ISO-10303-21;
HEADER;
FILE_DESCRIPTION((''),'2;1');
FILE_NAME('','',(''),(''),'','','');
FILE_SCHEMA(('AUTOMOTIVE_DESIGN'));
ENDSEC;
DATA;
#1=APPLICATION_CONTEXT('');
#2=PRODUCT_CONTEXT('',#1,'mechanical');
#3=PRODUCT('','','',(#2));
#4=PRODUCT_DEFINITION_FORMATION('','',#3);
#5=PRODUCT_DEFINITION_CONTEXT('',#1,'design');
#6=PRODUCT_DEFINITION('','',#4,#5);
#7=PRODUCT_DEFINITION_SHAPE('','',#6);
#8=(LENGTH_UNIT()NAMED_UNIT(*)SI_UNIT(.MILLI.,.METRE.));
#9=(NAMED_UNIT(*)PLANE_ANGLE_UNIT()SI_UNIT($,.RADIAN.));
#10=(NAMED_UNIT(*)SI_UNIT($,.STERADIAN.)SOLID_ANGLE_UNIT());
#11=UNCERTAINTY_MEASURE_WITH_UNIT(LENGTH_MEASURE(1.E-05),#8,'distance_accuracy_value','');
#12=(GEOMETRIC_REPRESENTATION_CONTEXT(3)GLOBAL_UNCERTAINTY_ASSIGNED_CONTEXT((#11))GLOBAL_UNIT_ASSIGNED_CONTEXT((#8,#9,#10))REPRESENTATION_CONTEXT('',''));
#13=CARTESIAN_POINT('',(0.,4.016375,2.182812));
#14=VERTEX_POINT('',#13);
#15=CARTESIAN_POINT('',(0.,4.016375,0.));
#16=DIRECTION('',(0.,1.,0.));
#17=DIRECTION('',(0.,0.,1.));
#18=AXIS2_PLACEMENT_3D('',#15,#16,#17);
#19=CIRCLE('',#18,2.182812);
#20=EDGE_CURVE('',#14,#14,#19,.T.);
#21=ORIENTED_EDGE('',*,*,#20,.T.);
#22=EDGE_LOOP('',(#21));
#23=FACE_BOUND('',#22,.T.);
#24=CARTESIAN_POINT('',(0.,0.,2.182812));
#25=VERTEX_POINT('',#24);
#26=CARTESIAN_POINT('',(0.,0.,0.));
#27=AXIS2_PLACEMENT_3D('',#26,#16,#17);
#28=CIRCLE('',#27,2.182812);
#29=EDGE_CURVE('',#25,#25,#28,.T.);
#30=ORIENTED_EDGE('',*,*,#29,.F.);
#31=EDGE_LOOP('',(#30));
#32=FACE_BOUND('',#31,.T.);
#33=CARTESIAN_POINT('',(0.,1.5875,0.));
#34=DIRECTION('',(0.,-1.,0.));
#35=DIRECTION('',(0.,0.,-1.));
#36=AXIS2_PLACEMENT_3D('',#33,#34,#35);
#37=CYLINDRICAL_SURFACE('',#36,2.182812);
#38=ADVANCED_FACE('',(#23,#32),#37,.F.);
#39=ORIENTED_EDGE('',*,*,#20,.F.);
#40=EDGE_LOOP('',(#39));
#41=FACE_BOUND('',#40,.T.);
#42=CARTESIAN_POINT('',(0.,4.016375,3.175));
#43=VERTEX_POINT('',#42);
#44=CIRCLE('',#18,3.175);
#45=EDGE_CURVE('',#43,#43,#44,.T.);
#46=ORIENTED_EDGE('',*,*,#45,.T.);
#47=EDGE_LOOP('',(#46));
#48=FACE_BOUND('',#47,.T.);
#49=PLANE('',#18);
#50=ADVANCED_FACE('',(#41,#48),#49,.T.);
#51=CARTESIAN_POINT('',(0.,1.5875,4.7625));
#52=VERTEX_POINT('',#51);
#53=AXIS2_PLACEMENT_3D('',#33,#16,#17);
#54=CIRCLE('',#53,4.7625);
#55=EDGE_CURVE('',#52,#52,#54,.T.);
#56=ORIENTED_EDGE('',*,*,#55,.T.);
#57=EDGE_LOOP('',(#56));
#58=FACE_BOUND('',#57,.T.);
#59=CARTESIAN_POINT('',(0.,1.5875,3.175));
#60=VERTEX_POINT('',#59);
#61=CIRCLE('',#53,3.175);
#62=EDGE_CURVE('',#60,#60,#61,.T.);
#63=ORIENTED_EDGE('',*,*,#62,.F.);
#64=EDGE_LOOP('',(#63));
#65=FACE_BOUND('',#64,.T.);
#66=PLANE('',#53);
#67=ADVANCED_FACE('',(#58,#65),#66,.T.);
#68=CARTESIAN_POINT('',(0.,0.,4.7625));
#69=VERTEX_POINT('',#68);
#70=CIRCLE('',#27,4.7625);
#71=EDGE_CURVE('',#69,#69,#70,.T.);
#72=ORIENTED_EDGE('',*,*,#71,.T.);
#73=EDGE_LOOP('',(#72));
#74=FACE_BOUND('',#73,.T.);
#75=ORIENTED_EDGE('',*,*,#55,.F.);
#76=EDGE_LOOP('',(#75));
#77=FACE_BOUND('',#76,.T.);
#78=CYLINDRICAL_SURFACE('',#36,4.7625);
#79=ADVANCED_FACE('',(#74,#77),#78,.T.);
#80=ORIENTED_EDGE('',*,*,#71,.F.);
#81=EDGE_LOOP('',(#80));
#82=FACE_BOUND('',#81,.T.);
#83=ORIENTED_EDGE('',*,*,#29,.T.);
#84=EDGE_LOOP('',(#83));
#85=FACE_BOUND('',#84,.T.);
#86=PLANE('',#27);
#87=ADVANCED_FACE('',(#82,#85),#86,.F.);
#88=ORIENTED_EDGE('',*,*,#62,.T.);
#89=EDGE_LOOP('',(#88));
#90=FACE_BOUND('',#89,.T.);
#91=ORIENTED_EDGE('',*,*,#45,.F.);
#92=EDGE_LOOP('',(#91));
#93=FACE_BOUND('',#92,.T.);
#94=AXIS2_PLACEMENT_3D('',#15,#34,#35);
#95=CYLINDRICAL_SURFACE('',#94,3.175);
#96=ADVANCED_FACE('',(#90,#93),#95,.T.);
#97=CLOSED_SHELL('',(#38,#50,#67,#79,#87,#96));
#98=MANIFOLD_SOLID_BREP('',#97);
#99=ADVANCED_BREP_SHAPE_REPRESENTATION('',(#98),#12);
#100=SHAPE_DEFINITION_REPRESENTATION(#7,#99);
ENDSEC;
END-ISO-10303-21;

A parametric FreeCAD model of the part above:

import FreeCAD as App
import Part
import Sketcher
Q = App.Units.Quantity

doc = App.newDocument("Part")
body = doc.addObject("PartDesign::Body", "Body")

# Sketch on XZ plane
sketch1 = body.newObject("Sketcher::SketchObject", "Sketch")
sketch1.AttachmentSupport = (doc.getObject("XZ_Plane"), [""])
sketch1.MapMode = "FlatFace"
sketch1.addGeometry(Part.Circle(App.Vector(0, 0, 0), App.Vector(0, 0, 1), 4.8), False)
sketch1.addGeometry(Part.Circle(App.Vector(0, 0, 0), App.Vector(0, 0, 1), 2.2), False)
sketch1.addConstraint(Sketcher.Constraint("Coincident", 0, 3, -1, 1))
sketch1.addConstraint(Sketcher.Constraint("Coincident", 1, 3, -1, 1))
sketch1.addConstraint(Sketcher.Constraint("Diameter", 0, Q("0.375 in")))
sketch1.addConstraint(Sketcher.Constraint("Diameter", 1, Q("0.171875 in")))
pad1 = body.newObject("PartDesign::Pad", "Pad")
pad1.Profile = sketch1
pad1.Length = Q("0.0625 in")
pad1.Reversed = True

# Sketch on XZ plane
sketch2 = body.newObject("Sketcher::SketchObject", "Sketch001")
sketch2.AttachmentSupport = (doc.getObject("XZ_Plane"), [""])
sketch2.MapMode = "FlatFace"
sketch2.AttachmentOffset = App.Placement(App.Vector(0, 0, -0.0625 * 25.4), App.Rotation())
sketch2.addGeometry(Part.Circle(App.Vector(0, 0, 0), App.Vector(0, 0, 1), 3.2), False)
sketch2.addGeometry(Part.Circle(App.Vector(0, 0, 0), App.Vector(0, 0, 1), 2.2), False)
sketch2.addConstraint(Sketcher.Constraint("Coincident", 0, 3, -1, 1))
sketch2.addConstraint(Sketcher.Constraint("Coincident", 1, 3, -1, 1))
sketch2.addConstraint(Sketcher.Constraint("Diameter", 0, Q("0.25 in")))
sketch2.addConstraint(Sketcher.Constraint("Diameter", 1, Q("0.171875 in")))
pad2 = body.newObject("PartDesign::Pad", "Pad001")
pad2.Profile = sketch2
pad2.Length = 2.428875
pad2.Reversed = True

doc.recompute()
